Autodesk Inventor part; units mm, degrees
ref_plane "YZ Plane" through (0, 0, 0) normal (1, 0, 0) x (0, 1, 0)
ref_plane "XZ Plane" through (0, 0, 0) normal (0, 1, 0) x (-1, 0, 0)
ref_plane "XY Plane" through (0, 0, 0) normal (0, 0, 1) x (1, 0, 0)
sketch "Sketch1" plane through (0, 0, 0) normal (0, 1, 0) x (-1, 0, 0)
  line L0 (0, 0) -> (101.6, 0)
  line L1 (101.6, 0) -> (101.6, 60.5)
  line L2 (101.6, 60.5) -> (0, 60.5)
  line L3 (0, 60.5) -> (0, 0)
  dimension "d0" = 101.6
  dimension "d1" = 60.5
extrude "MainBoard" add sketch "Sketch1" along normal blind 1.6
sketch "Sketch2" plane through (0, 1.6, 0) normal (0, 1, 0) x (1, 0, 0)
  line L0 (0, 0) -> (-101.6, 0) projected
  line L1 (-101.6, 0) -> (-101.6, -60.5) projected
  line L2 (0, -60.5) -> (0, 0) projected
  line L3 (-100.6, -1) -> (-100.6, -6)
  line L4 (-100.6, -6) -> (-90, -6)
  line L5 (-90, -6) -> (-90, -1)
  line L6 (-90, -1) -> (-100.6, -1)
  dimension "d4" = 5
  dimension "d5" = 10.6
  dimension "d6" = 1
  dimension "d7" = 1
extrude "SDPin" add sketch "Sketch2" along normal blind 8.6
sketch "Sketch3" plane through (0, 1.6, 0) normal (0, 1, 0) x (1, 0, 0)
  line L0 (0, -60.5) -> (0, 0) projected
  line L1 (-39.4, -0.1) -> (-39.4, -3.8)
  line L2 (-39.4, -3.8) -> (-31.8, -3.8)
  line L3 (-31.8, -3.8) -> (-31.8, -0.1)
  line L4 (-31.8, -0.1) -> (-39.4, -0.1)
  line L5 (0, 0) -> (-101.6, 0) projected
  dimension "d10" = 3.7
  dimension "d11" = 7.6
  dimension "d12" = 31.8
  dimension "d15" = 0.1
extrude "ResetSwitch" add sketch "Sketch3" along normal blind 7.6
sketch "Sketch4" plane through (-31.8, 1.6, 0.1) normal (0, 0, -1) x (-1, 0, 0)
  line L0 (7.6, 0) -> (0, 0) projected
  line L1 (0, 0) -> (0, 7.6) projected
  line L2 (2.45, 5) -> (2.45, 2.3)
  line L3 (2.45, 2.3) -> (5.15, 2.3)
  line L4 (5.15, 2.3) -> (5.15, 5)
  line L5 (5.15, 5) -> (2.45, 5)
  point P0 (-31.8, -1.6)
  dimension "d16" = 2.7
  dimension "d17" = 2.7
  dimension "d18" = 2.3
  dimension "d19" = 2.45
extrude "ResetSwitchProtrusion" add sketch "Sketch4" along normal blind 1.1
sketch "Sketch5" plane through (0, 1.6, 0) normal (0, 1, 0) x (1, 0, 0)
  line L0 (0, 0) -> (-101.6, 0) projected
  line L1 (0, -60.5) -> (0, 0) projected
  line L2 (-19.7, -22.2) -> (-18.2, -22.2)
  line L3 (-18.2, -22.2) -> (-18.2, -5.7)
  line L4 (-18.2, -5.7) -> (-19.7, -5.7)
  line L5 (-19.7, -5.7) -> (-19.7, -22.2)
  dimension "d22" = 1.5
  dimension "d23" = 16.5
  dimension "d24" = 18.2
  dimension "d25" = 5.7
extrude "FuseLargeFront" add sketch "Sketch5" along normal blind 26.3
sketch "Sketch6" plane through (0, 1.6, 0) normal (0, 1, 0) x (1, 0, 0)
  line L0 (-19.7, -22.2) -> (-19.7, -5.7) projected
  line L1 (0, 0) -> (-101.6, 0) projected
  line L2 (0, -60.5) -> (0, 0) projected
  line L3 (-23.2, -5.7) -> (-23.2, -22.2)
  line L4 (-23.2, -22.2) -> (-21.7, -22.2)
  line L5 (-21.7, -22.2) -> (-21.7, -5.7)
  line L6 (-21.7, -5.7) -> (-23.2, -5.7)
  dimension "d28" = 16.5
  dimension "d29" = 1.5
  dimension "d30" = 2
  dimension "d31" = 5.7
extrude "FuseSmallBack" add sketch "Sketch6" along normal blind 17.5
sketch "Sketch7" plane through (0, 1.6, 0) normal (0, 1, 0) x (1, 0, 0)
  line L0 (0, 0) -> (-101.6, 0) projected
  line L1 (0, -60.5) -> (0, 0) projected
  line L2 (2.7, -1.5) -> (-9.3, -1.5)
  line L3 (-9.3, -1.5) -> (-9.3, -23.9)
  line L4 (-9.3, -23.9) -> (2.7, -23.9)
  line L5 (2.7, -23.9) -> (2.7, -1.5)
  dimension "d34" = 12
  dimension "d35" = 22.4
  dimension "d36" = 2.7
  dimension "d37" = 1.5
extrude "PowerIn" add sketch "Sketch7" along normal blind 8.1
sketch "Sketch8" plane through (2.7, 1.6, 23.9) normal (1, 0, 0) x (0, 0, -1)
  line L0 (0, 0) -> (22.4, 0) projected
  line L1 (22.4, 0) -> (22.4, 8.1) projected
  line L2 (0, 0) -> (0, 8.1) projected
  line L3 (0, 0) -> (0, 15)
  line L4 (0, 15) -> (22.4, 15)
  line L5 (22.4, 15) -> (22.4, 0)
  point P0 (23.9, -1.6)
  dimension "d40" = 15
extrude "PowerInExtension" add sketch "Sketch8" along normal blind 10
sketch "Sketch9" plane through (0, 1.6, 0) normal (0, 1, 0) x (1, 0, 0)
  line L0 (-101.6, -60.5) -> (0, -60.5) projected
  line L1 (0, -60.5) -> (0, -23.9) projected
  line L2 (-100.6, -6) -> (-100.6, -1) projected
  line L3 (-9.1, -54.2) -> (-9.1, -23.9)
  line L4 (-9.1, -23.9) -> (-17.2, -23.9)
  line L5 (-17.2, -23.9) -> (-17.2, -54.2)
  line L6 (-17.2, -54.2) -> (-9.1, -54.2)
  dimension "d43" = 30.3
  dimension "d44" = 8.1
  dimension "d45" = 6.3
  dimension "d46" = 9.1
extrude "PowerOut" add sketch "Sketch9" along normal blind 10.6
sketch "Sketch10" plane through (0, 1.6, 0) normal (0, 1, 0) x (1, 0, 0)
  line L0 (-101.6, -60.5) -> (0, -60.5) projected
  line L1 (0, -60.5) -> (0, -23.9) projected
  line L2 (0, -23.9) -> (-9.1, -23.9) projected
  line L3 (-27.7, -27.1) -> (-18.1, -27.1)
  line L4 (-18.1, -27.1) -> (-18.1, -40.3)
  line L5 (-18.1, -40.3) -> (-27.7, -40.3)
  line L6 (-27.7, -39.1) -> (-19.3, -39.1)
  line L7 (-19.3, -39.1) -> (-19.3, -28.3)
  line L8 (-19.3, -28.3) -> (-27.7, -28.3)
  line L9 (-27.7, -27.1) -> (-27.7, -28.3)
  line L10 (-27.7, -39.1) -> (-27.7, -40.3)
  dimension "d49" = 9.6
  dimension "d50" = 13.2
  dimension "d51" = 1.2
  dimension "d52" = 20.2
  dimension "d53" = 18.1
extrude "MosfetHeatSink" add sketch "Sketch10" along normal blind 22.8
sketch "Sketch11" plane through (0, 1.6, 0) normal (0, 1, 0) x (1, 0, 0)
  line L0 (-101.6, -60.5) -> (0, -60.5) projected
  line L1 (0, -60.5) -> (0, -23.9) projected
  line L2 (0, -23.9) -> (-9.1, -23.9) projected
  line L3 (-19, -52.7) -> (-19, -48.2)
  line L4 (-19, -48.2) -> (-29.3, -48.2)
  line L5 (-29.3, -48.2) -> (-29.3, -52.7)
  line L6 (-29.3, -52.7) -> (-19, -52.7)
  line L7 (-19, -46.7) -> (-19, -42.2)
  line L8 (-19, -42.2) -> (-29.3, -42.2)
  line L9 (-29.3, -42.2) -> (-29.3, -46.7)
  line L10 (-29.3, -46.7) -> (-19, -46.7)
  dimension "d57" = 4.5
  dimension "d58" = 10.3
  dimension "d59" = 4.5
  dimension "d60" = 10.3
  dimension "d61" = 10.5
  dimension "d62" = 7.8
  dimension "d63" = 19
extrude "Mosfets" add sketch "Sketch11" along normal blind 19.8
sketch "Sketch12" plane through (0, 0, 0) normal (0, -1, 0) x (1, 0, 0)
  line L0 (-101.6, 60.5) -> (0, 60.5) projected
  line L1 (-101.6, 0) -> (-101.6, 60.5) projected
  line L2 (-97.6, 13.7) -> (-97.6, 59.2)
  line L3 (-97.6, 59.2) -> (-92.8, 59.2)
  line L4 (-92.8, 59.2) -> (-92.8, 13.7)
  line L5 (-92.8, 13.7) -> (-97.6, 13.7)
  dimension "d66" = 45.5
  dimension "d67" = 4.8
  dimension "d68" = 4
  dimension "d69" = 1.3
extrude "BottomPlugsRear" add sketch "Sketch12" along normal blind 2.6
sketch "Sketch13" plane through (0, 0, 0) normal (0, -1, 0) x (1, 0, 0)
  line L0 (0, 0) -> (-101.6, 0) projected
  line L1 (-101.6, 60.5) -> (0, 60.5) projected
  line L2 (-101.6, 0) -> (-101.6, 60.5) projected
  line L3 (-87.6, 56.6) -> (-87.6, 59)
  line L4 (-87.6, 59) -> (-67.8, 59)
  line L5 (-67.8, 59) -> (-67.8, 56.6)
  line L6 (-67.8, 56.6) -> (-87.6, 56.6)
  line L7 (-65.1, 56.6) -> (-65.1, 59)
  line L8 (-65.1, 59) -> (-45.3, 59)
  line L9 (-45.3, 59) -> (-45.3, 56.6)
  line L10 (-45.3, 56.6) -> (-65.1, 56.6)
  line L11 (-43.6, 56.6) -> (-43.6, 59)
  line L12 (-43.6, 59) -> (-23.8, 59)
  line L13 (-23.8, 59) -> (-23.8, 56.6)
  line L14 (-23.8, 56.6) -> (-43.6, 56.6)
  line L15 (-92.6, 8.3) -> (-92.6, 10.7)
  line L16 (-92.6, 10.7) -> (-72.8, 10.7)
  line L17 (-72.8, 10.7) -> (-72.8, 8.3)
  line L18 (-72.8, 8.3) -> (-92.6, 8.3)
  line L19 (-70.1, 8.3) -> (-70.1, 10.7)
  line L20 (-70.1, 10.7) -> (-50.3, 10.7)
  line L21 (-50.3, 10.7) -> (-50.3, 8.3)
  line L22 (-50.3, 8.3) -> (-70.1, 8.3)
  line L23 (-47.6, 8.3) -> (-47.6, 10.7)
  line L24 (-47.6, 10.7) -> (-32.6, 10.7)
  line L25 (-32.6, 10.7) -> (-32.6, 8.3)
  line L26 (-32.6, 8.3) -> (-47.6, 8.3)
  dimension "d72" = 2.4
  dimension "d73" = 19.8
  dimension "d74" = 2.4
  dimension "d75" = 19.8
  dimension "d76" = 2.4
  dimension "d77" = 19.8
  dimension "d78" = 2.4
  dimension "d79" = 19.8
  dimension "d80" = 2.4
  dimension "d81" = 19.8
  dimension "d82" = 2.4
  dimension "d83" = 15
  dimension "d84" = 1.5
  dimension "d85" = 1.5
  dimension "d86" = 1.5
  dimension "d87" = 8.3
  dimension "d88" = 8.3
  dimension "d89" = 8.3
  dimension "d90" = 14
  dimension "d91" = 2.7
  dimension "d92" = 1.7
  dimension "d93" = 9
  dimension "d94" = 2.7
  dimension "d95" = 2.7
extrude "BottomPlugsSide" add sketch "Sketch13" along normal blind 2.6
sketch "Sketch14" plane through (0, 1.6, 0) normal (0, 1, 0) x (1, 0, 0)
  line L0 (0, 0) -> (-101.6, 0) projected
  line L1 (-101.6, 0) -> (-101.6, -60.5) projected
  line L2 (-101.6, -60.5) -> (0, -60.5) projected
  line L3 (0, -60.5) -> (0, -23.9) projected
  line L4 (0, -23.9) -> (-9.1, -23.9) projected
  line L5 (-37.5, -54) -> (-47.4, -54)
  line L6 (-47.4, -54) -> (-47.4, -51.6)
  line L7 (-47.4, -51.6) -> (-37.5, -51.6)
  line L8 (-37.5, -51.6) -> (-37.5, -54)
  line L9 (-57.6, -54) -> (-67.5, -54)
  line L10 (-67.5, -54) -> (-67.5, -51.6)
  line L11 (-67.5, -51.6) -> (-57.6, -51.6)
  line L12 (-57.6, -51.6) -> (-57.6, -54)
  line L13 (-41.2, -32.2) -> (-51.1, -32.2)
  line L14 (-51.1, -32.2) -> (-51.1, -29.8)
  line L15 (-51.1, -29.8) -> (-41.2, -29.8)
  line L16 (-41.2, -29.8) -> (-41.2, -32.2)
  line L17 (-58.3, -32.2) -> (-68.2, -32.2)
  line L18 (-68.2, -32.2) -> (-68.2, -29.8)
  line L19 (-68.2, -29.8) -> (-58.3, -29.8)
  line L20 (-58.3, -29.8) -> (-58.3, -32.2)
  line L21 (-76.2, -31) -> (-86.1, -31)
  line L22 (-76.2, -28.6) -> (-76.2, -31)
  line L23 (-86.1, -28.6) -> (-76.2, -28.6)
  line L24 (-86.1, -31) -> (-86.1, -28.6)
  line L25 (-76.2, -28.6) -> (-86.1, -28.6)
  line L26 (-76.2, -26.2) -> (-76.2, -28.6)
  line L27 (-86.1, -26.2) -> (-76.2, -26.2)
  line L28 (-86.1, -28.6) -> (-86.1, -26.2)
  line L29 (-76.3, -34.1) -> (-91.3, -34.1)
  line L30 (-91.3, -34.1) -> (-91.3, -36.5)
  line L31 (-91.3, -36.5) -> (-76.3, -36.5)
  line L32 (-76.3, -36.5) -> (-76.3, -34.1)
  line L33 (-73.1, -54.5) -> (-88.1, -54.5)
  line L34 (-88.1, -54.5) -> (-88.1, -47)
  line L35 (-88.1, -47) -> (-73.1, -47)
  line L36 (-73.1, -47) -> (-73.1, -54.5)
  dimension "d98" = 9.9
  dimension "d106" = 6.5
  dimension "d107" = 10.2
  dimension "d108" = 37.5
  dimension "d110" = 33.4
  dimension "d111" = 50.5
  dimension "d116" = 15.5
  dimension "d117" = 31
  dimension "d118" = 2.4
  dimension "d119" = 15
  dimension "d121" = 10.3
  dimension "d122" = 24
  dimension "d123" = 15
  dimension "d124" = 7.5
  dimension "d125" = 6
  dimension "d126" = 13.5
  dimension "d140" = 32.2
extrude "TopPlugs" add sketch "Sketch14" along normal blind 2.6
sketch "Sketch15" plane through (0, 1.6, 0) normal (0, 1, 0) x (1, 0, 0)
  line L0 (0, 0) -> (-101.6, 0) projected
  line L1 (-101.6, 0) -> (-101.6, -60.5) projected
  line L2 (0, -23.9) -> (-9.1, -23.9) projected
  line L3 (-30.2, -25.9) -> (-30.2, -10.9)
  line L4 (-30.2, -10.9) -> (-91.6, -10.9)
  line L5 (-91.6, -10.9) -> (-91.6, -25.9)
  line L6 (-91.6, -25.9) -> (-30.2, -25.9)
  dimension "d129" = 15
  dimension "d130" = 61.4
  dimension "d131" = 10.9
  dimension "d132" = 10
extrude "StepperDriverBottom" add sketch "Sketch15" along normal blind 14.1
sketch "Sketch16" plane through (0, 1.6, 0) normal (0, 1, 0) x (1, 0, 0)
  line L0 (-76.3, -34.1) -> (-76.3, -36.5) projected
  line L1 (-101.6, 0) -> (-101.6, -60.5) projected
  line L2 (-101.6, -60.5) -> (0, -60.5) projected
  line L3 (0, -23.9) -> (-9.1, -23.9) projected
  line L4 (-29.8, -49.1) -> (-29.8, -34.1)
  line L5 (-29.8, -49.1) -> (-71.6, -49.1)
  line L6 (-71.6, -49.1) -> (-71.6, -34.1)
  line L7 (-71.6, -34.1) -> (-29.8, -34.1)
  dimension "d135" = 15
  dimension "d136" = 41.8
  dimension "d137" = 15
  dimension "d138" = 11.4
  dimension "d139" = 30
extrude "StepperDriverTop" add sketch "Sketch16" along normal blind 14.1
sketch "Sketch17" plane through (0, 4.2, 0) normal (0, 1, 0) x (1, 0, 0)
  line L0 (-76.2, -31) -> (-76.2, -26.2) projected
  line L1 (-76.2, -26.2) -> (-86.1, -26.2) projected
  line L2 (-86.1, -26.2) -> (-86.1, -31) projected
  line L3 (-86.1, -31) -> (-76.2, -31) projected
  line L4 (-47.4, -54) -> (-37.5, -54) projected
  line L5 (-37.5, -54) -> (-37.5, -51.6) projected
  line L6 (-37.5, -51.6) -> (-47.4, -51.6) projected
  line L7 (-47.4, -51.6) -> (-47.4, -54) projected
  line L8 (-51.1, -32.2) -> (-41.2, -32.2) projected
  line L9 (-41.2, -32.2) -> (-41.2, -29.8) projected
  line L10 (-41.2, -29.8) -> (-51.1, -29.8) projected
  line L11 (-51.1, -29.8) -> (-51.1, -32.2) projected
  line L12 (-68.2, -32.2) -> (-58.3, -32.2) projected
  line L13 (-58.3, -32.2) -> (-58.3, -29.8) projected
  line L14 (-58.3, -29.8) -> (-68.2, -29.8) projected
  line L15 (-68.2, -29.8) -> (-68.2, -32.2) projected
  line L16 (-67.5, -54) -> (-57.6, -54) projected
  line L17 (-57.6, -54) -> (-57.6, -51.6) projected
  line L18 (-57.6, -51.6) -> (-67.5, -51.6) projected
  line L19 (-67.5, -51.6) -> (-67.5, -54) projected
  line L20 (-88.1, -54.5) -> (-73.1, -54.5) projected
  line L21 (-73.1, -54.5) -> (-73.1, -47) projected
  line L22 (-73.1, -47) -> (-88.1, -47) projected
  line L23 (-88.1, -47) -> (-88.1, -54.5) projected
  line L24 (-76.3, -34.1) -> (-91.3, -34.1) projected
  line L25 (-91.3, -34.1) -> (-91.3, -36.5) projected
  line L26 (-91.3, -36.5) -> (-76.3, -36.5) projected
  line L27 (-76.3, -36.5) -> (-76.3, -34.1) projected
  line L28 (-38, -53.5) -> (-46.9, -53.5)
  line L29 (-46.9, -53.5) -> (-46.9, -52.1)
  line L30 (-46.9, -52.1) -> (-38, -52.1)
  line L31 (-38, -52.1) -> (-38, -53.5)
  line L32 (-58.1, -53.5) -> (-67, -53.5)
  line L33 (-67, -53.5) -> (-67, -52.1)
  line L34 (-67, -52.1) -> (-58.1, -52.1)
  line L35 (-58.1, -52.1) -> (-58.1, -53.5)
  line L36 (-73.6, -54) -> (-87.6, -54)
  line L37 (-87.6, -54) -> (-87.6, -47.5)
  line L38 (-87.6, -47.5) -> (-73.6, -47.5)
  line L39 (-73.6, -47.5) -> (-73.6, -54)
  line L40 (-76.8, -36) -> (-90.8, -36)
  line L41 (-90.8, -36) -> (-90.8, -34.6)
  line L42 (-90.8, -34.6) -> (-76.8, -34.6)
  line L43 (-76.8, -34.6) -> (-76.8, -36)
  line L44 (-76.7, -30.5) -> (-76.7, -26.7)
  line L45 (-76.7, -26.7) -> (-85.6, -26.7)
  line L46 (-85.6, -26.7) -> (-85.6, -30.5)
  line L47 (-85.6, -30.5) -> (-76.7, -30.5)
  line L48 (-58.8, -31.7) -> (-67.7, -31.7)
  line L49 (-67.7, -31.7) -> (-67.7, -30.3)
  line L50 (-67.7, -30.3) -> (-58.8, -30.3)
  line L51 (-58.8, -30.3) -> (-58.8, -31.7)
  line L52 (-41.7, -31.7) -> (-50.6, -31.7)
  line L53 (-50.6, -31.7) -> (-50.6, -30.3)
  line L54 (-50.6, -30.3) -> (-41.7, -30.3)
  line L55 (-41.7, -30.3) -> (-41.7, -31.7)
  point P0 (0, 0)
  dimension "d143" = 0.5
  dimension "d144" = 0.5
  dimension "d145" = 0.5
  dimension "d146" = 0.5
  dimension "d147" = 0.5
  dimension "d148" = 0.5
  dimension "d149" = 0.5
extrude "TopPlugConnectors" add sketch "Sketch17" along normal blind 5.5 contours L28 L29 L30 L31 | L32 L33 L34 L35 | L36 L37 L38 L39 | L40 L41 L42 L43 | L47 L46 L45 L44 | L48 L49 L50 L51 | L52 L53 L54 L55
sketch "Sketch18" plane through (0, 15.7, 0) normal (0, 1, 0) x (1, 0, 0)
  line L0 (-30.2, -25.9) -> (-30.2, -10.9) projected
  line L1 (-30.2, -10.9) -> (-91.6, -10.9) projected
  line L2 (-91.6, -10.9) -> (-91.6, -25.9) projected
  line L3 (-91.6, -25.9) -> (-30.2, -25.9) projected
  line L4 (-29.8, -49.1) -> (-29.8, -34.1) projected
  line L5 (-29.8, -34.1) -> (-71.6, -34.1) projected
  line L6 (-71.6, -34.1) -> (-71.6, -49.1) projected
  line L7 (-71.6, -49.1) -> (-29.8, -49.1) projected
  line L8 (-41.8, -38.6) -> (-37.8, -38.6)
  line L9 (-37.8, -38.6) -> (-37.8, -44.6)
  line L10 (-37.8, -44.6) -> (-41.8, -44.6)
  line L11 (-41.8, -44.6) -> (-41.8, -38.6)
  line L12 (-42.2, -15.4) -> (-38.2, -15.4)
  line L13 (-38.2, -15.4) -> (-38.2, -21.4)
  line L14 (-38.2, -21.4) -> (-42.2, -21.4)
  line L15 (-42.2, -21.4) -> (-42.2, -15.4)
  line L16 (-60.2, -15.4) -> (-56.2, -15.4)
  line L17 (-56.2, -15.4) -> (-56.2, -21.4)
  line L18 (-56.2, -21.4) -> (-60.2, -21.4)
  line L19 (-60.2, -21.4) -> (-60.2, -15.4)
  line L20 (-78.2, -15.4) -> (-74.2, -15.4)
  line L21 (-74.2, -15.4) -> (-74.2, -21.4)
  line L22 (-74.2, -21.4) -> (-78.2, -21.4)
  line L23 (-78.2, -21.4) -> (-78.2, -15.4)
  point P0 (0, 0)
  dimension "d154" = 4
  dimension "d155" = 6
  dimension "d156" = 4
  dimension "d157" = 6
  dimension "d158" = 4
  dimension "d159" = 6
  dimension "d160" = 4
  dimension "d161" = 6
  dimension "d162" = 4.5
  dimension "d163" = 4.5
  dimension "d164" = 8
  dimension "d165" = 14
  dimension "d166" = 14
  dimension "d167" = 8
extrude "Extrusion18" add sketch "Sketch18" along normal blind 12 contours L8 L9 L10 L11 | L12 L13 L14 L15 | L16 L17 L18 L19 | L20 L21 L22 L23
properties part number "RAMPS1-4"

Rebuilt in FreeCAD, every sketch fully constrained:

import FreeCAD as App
import Part
import Sketcher

V = App.Vector


def add_polygon(sketch, points):
    """Adds a closed chain of lines whose ends are joined by coincident constraints."""
    first, n = sketch.GeometryCount, len(points)
    for a, b in zip(points, points[1:] + points[:1]):
        sketch.addGeometry(Part.LineSegment(App.Vector(*a, 0), App.Vector(*b, 0)), False)
    for i in range(n):
        sketch.addConstraint(Sketcher.Constraint("Coincident", first + i, 2, first + (i + 1) % n, 1))

doc = App.newDocument("Part")
body = doc.addObject("PartDesign::Body", "Body")

sketch1 = body.newObject("Sketcher::SketchObject", "Sketch")
sketch1.AttachmentSupport = (doc.getObject("XZ_Plane"), [""])
sketch1.MapMode = "FlatFace"
add_polygon(sketch1, [(0, 60), (0, 0), (-102, 0), (-102, 60)])
sketch1.addConstraint([
    Sketcher.Constraint("Vertical", 0),
    Sketcher.Constraint("Horizontal", 1),
    Sketcher.Constraint("Vertical", 2),
    Sketcher.Constraint("Horizontal", 3),
    Sketcher.Constraint("Coincident", 0, 2, -1, 1),
    Sketcher.Constraint("DistanceX", 1, 2, 1, 1, 101.6),
    Sketcher.Constraint("DistanceY", 0, 2, 0, 1, 60.5),
])
pad1 = body.newObject("PartDesign::Pad", "Pad")
pad1.Profile = sketch1
pad1.Length = 1.6
pad1.Reversed = True

sketch2 = body.newObject("Sketcher::SketchObject", "Sketch001")
sketch2.AttachmentSupport = (doc.getObject("XZ_Plane"), [""])
sketch2.MapMode = "FlatFace"
sketch2.AttachmentOffset = App.Placement(V(0, 0, -1.6), App.Rotation())
add_polygon(sketch2, [(-90, 1), (-101, 1), (-101, 6), (-90, 6)])
sketch2.addConstraint([
    Sketcher.Constraint("Horizontal", 0),
    Sketcher.Constraint("Vertical", 1),
    Sketcher.Constraint("Horizontal", 2),
    Sketcher.Constraint("Vertical", 3),
    Sketcher.Constraint("DistanceY", 1, 1, 1, 2, 5.0),
    Sketcher.Constraint("DistanceX", 0, 2, 0, 1, 10.6),
    Sketcher.Constraint("DistanceY", -1, 1, 0, 2, 1.0),
    Sketcher.Constraint("DistanceX", 2, 2, -1, 1, 90.0),
])
pad2 = body.newObject("PartDesign::Pad", "Pad001")
pad2.Profile = sketch2
pad2.Length = 8.6
pad2.Reversed = True

sketch3 = body.newObject("Sketcher::SketchObject", "Sketch002")
sketch3.AttachmentSupport = (doc.getObject("XZ_Plane"), [""])
sketch3.MapMode = "FlatFace"
sketch3.AttachmentOffset = App.Placement(V(0, 0, -1.6), App.Rotation())
add_polygon(sketch3, [(-31.8, 0.1), (-39.4, 0.1), (-39.4, 3.8), (-31.8, 3.8)])
sketch3.addConstraint([
    Sketcher.Constraint("Horizontal", 0),
    Sketcher.Constraint("Vertical", 1),
    Sketcher.Constraint("Horizontal", 2),
    Sketcher.Constraint("Vertical", 3),
    Sketcher.Constraint("DistanceX", 0, 2, 0, 1, 7.6),
    Sketcher.Constraint("DistanceY", 1, 1, 1, 2, 3.7),
    Sketcher.Constraint("DistanceY", -1, 1, 0, 2, 0.1),
    Sketcher.Constraint("DistanceX", 2, 2, -1, 1, 31.8),
])
pad3 = body.newObject("PartDesign::Pad", "Pad002")
pad3.Profile = sketch3
pad3.Length = 7.6
pad3.Reversed = True

sketch4 = body.newObject("Sketcher::SketchObject", "Sketch003")
sketch4.AttachmentSupport = (doc.getObject("XY_Plane"), [""])
sketch4.MapMode = "FlatFace"
sketch4.AttachmentOffset = App.Placement(V(0, 0, 0.1), App.Rotation())
add_polygon(sketch4, [(-37, 6.6), (-34.2, 6.6), (-34.2, 3.9), (-37, 3.9)])
sketch4.addConstraint([
    Sketcher.Constraint("Horizontal", 0),
    Sketcher.Constraint("Vertical", 1),
    Sketcher.Constraint("Horizontal", 2),
    Sketcher.Constraint("Vertical", 3),
    Sketcher.Constraint("Equal", 2, 1),
    Sketcher.Constraint("DistanceX", 0, 1, 0, 2, 2.7),
    Sketcher.Constraint("DistanceY", -1, 1, 0, 2, 6.6),
    Sketcher.Constraint("DistanceX", 0, 2, -1, 1, 34.25),
])
pad4 = body.newObject("PartDesign::Pad", "Pad003")
pad4.Profile = sketch4
pad4.Length = 1.1
pad4.Reversed = True

sketch5 = body.newObject("Sketcher::SketchObject", "Sketch004")
sketch5.AttachmentSupport = (doc.getObject("XZ_Plane"), [""])
sketch5.MapMode = "FlatFace"
sketch5.AttachmentOffset = App.Placement(V(0, 0, -1.6), App.Rotation())
add_polygon(sketch5, [(-19.7, 5.7), (-19.7, 22.2), (-18.2, 22.2), (-18.2, 5.7)])
sketch5.addConstraint([
    Sketcher.Constraint("Vertical", 0),
    Sketcher.Constraint("Horizontal", 1),
    Sketcher.Constraint("Vertical", 2),
    Sketcher.Constraint("Horizontal", 3),
    Sketcher.Constraint("DistanceX", 1, 1, 1, 2, 1.5),
    Sketcher.Constraint("DistanceY", 0, 1, 0, 2, 16.5),
    Sketcher.Constraint("DistanceX", 1, 2, -1, 1, 18.2),
    Sketcher.Constraint("DistanceY", -1, 1, 2, 2, 5.7),
])
pad5 = body.newObject("PartDesign::Pad", "Pad004")
pad5.Profile = sketch5
pad5.Length = 26.3
pad5.Reversed = True

sketch6 = body.newObject("Sketcher::SketchObject", "Sketch005")
sketch6.AttachmentSupport = (doc.getObject("XZ_Plane"), [""])
sketch6.MapMode = "FlatFace"
sketch6.AttachmentOffset = App.Placement(V(0, 0, -1.6), App.Rotation())
add_polygon(sketch6, [(-21.7, 5.7), (-23.2, 5.7), (-23.2, 22.2), (-21.7, 22.2)])
sketch6.addConstraint([
    Sketcher.Constraint("Horizontal", 0),
    Sketcher.Constraint("Vertical", 1),
    Sketcher.Constraint("Horizontal", 2),
    Sketcher.Constraint("Vertical", 3),
    Sketcher.Constraint("DistanceX", 0, 2, 0, 1, 1.5),
    Sketcher.Constraint("DistanceY", 1, 1, 1, 2, 16.5),
    Sketcher.Constraint("DistanceY", -1, 1, 0, 2, 5.7),
    Sketcher.Constraint("DistanceX", 0, 2, -1, 1, 23.2),
])
pad6 = body.newObject("PartDesign::Pad", "Pad005")
pad6.Profile = sketch6
pad6.Length = 17.5
pad6.Reversed = True

sketch7 = body.newObject("Sketcher::SketchObject", "Sketch006")
sketch7.AttachmentSupport = (doc.getObject("XZ_Plane"), [""])
sketch7.MapMode = "FlatFace"
sketch7.AttachmentOffset = App.Placement(V(0, 0, -1.6), App.Rotation())
add_polygon(sketch7, [(-9, 24), (3, 24), (3, 2), (-9, 2)])
sketch7.addConstraint([
    Sketcher.Constraint("Horizontal", 0),
    Sketcher.Constraint("Vertical", 1),
    Sketcher.Constraint("Horizontal", 2),
    Sketcher.Constraint("Vertical", 3),
    Sketcher.Constraint("DistanceX", 0, 1, 0, 2, 12.0),
    Sketcher.Constraint("DistanceY", 1, 2, 1, 1, 22.4),
    Sketcher.Constraint("DistanceX", -1, 1, 0, 2, 2.7),
    Sketcher.Constraint("DistanceY", -1, 1, 1, 2, 1.5),
])
pad7 = body.newObject("PartDesign::Pad", "Pad006")
pad7.Profile = sketch7
pad7.Length = 8.1
pad7.Reversed = True

sketch8 = body.newObject("Sketcher::SketchObject", "Sketch007")
sketch8.AttachmentSupport = (doc.getObject("YZ_Plane"), [""])
sketch8.MapMode = "FlatFace"
sketch8.AttachmentOffset = App.Placement(V(0, 0, 2.7), App.Rotation())
add_polygon(sketch8, [(17, 24), (2, 24), (2, 2), (17, 2)])
sketch8.addConstraint([
    Sketcher.Constraint("Horizontal", 0),
    Sketcher.Constraint("Vertical", 1),
    Sketcher.Constraint("Horizontal", 2),
    Sketcher.Constraint("Vertical", 3),
    Sketcher.Constraint("DistanceX", 0, 2, 0, 1, 15.0),
    Sketcher.Constraint("DistanceY", 1, 2, 1, 1, 22.4),
    Sketcher.Constraint("DistanceX", -1, 1, 0, 2, 1.6),
    Sketcher.Constraint("DistanceY", -1, 1, 0, 2, 23.9),
])
pad8 = body.newObject("PartDesign::Pad", "Pad007")
pad8.Profile = sketch8
pad8.Length = 10

sketch9 = body.newObject("Sketcher::SketchObject", "Sketch008")
sketch9.AttachmentSupport = (doc.getObject("XZ_Plane"), [""])
sketch9.MapMode = "FlatFace"
sketch9.AttachmentOffset = App.Placement(V(0, 0, -1.6), App.Rotation())
add_polygon(sketch9, [(-17, 54), (-9, 54), (-9, 24), (-17, 24)])
sketch9.addConstraint([
    Sketcher.Constraint("Horizontal", 0),
    Sketcher.Constraint("Vertical", 1),
    Sketcher.Constraint("Horizontal", 2),
    Sketcher.Constraint("Vertical", 3),
    Sketcher.Constraint("DistanceX", 0, 1, 0, 2, 8.1),
    Sketcher.Constraint("DistanceY", 1, 2, 1, 1, 30.3),
    Sketcher.Constraint("DistanceX", 0, 2, -1, 1, 9.1),
    Sketcher.Constraint("DistanceY", -1, 1, 0, 2, 54.2),
])
pad9 = body.newObject("PartDesign::Pad", "Pad008")
pad9.Profile = sketch9
pad9.Length = 10.6
pad9.Reversed = True

sketch10 = body.newObject("Sketcher::SketchObject", "Sketch009")
sketch10.AttachmentSupport = (doc.getObject("XZ_Plane"), [""])
sketch10.MapMode = "FlatFace"
sketch10.AttachmentOffset = App.Placement(V(0, 0, -1.6), App.Rotation())
add_polygon(sketch10, [(-18.1, 27.1), (-27.7, 27.1), (-27.7, 28.3), (-19.3, 28.3), (-19.3, 39.1), (-27.7, 39.1), (-27.7, 40.3), (-18.1, 40.3)])
sketch10.addConstraint([
    Sketcher.Constraint("Horizontal", 0),
    Sketcher.Constraint("Vertical", 1),
    Sketcher.Constraint("Horizontal", 2),
    Sketcher.Constraint("Vertical", 3),
    Sketcher.Constraint("Horizontal", 4),
    Sketcher.Constraint("Vertical", 5),
    Sketcher.Constraint("Horizontal", 6),
    Sketcher.Constraint("Vertical", 7),
    Sketcher.Constraint("Vertical", 1, 2, 4, 2),
    Sketcher.Constraint("Equal", 1, 5),
    Sketcher.Constraint("DistanceX", 0, 2, 0, 1, 9.6),
    Sketcher.Constraint("DistanceY", 1, 1, 1, 2, 1.2),
    Sketcher.Constraint("DistanceY", 7, 2, 7, 1, 13.2),
    Sketcher.Constraint("DistanceX", 6, 2, -1, 1, 18.1),
    Sketcher.Constraint("DistanceX", 3, 2, 6, 2, 1.2),
    Sketcher.Constraint("DistanceY", -1, 1, 0, 2, 27.1),
])
pad10 = body.newObject("PartDesign::Pad", "Pad009")
pad10.Profile = sketch10
pad10.Length = 22.8
pad10.Reversed = True

sketch11 = body.newObject("Sketcher::SketchObject", "Sketch010")
sketch11.AttachmentSupport = (doc.getObject("XZ_Plane"), [""])
sketch11.MapMode = "FlatFace"
sketch11.AttachmentOffset = App.Placement(V(0, 0, -1.6), App.Rotation())
add_polygon(sketch11, [(-29.3, 52.7), (-19, 52.7), (-19, 48.2), (-29.3, 48.2)])
add_polygon(sketch11, [(-29.3, 46.7), (-19, 46.7), (-19, 42.2), (-29.3, 42.2)])
sketch11.addConstraint([
    Sketcher.Constraint("Horizontal", 0),
    Sketcher.Constraint("Vertical", 1),
    Sketcher.Constraint("Horizontal", 2),
    Sketcher.Constraint("Vertical", 3),
    Sketcher.Constraint("Horizontal", 4),
    Sketcher.Constraint("Vertical", 5),
    Sketcher.Constraint("Horizontal", 6),
    Sketcher.Constraint("Vertical", 7),
    Sketcher.Constraint("Vertical", 1, 2, 4, 2),
    Sketcher.Constraint("Vertical", 3, 2, 6, 2),
    Sketcher.Constraint("Equal", 3, 5),
    Sketcher.Constraint("DistanceX", 0, 1, 0, 2, 10.3),
    Sketcher.Constraint("DistanceY", 1, 2, 1, 1, 4.5),
    Sketcher.Constraint("DistanceX", 0, 2, -1, 1, 19.0),
    Sketcher.Constraint("DistanceY", 5, 2, 0, 2, 10.5),
    Sketcher.Constraint("DistanceY", -1, 1, 0, 2, 52.7),
])
pad11 = body.newObject("PartDesign::Pad", "Pad010")
pad11.Profile = sketch11
pad11.Length = 19.8
pad11.Reversed = True

sketch12 = body.newObject("Sketcher::SketchObject", "Sketch011")
sketch12.AttachmentSupport = (doc.getObject("XZ_Plane"), [""])
sketch12.MapMode = "FlatFace"
add_polygon(sketch12, [(-97.6, 59.2), (-97.6, 13.7), (-92.8, 13.7), (-92.8, 59.2)])
sketch12.addConstraint([
    Sketcher.Constraint("Vertical", 0),
    Sketcher.Constraint("Horizontal", 1),
    Sketcher.Constraint("Vertical", 2),
    Sketcher.Constraint("Horizontal", 3),
    Sketcher.Constraint("DistanceX", 1, 1, 1, 2, 4.8),
    Sketcher.Constraint("DistanceY", 0, 2, 0, 1, 45.5),
    Sketcher.Constraint("DistanceX", 0, 2, -1, 1, 97.6),
    Sketcher.Constraint("DistanceY", -1, 1, 0, 2, 13.7),
])
pad12 = body.newObject("PartDesign::Pad", "Pad011")
pad12.Profile = sketch12
pad12.Length = 2.6

sketch13 = body.newObject("Sketcher::SketchObject", "Sketch012")
sketch13.AttachmentSupport = (doc.getObject("XZ_Plane"), [""])
sketch13.MapMode = "FlatFace"
add_polygon(sketch13, [(-87.6, 59), (-87.6, 56.6), (-67.8, 56.6), (-67.8, 59)])
add_polygon(sketch13, [(-65.1, 59), (-65.1, 56.6), (-45.3, 56.6), (-45.3, 59)])
add_polygon(sketch13, [(-43.6, 59), (-43.6, 56.6), (-23.8, 56.6), (-23.8, 59)])
add_polygon(sketch13, [(-92.6, 10.7), (-92.6, 8.3), (-72.8, 8.3), (-72.8, 10.7)])
add_polygon(sketch13, [(-70.1, 10.7), (-70.1, 8.3), (-50.3, 8.3), (-50.3, 10.7)])
add_polygon(sketch13, [(-47.6, 10.7), (-47.6, 8.3), (-32.6, 8.3), (-32.6, 10.7)])
sketch13.addConstraint([
    Sketcher.Constraint("Vertical", 0),
    Sketcher.Constraint("Horizontal", 1),
    Sketcher.Constraint("Vertical", 2),
    Sketcher.Constraint("Horizontal", 3),
    Sketcher.Constraint("Vertical", 4),
    Sketcher.Constraint("Horizontal", 5),
    Sketcher.Constraint("Vertical", 6),
    Sketcher.Constraint("Horizontal", 7),
    Sketcher.Constraint("Vertical", 8),
    Sketcher.Constraint("Horizontal", 9),
    Sketcher.Constraint("Vertical", 10),
    Sketcher.Constraint("Horizontal", 11),
    Sketcher.Constraint("Vertical", 12),
    Sketcher.Constraint("Horizontal", 13),
    Sketcher.Constraint("Vertical", 14),
    Sketcher.Constraint("Horizontal", 15),
    Sketcher.Constraint("Vertical", 16),
    Sketcher.Constraint("Horizontal", 17),
    Sketcher.Constraint("Vertical", 18),
    Sketcher.Constraint("Horizontal", 19),
    Sketcher.Constraint("Vertical", 20),
    Sketcher.Constraint("Horizontal", 21),
    Sketcher.Constraint("Vertical", 22),
    Sketcher.Constraint("Horizontal", 23),
    Sketcher.Constraint("Horizontal", 1, 2, 4, 2),
    Sketcher.Constraint("Horizontal", 3, 2, 6, 2),
    Sketcher.Constraint("Horizontal", 5, 2, 8, 2),
    Sketcher.Constraint("Horizontal", 7, 2, 10, 2),
    Sketcher.Constraint("Horizontal", 13, 2, 16, 2),
    Sketcher.Constraint("Horizontal", 15, 2, 18, 2),
    Sketcher.Constraint("Horizontal", 17, 2, 20, 2),
    Sketcher.Constraint("Horizontal", 19, 2, 22, 2),
    Sketcher.Constraint("Equal", 3, 5),
    Sketcher.Constraint("Equal", 7, 9),
    Sketcher.Constraint("Equal", 11, 13),
    Sketcher.Constraint("Equal", 15, 17),
    Sketcher.Constraint("Equal", 10, 12),
    Sketcher.Constraint("DistanceX", 21, 1, 21, 2, 15.0),
    Sketcher.Constraint("DistanceX", 1, 1, 1, 2, 19.8),
    Sketcher.Constraint("DistanceY", 0, 2, 0, 1, 2.4),
    Sketcher.Constraint("DistanceY", -1, 1, 12, 2, 8.3),
    Sketcher.Constraint("DistanceX", 1, 2, 4, 2, 2.7),
    Sketcher.Constraint("DistanceX", 5, 2, 8, 2, 1.7),
    Sketcher.Constraint("DistanceX", 13, 2, 16, 2, 2.7),
    Sketcher.Constraint("DistanceX", 17, 2, 20, 2, 2.7),
    Sketcher.Constraint("DistanceY", -1, 1, 2, 2, 59.0),
    Sketcher.Constraint("DistanceX", 12, 2, 0, 2, 5.0),
    Sketcher.Constraint("DistanceX", 0, 2, -1, 1, 87.6),
])
pad13 = body.newObject("PartDesign::Pad", "Pad012")
pad13.Profile = sketch13
pad13.Length = 2.6

sketch14 = body.newObject("Sketcher::SketchObject", "Sketch013")
sketch14.AttachmentSupport = (doc.getObject("XZ_Plane"), [""])
sketch14.MapMode = "FlatFace"
sketch14.AttachmentOffset = App.Placement(V(0, 0, -1.6), App.Rotation())
add_polygon(sketch14, [(-47.4, 54), (-37.5, 54), (-37.5, 51.6), (-47.4, 51.6)])
add_polygon(sketch14, [(-67.5, 54), (-57.6, 54), (-57.6, 51.6), (-67.5, 51.6)])
add_polygon(sketch14, [(-51.1, 32.2), (-41.2, 32.2), (-41.2, 29.8), (-51.1, 29.8)])
add_polygon(sketch14, [(-68.2, 32.2), (-58.3, 32.2), (-58.3, 29.8), (-68.2, 29.8)])
add_polygon(sketch14, [(-86.1, 31), (-76.2, 31), (-76.2, 26.2), (-86.1, 26.2)])
add_polygon(sketch14, [(-76.3, 36.5), (-76.3, 34.1), (-91.3, 34.1), (-91.3, 36.5)])
add_polygon(sketch14, [(-88.1, 54.5), (-73.1, 54.5), (-73.1, 47), (-88.1, 47)])
sketch14.addConstraint([
    Sketcher.Constraint("Horizontal", 0),
    Sketcher.Constraint("Vertical", 1),
    Sketcher.Constraint("Horizontal", 2),
    Sketcher.Constraint("Vertical", 3),
    Sketcher.Constraint("Horizontal", 4),
    Sketcher.Constraint("Vertical", 5),
    Sketcher.Constraint("Horizontal", 6),
    Sketcher.Constraint("Vertical", 7),
    Sketcher.Constraint("Horizontal", 8),
    Sketcher.Constraint("Vertical", 9),
    Sketcher.Constraint("Horizontal", 10),
    Sketcher.Constraint("Vertical", 11),
    Sketcher.Constraint("Horizontal", 12),
    Sketcher.Constraint("Vertical", 13),
    Sketcher.Constraint("Horizontal", 14),
    Sketcher.Constraint("Vertical", 15),
    Sketcher.Constraint("Horizontal", 16),
    Sketcher.Constraint("Vertical", 17),
    Sketcher.Constraint("Horizontal", 18),
    Sketcher.Constraint("Vertical", 19),
    Sketcher.Constraint("Vertical", 20),
    Sketcher.Constraint("Horizontal", 21),
    Sketcher.Constraint("Vertical", 22),
    Sketcher.Constraint("Horizontal", 23),
    Sketcher.Constraint("Horizontal", 24),
    Sketcher.Constraint("Vertical", 25),
    Sketcher.Constraint("Horizontal", 26),
    Sketcher.Constraint("Vertical", 27),
    Sketcher.Constraint("Horizontal", 3, 2, 4, 2),
    Sketcher.Constraint("Horizontal", 2, 2, 5, 2),
    Sketcher.Constraint("Horizontal", 11, 2, 12, 2),
    Sketcher.Constraint("Horizontal", 10, 2, 13, 2),
    Sketcher.Constraint("Equal", 2, 4),
    Sketcher.Constraint("Equal", 6, 8),
    Sketcher.Constraint("Equal", 10, 12),
    Sketcher.Constraint("Equal", 14, 16),
    Sketcher.Constraint("Equal", 23, 24),
    Sketcher.Constraint("Equal", 7, 9),
    Sketcher.Constraint("Equal", 15, 20),
    Sketcher.Constraint("DistanceX", 21, 2, 21, 1, 15.0),
    Sketcher.Constraint("DistanceX", 0, 1, 0, 2, 9.9),
    Sketcher.Constraint("DistanceY", 1, 2, 1, 1, 2.4),
    Sketcher.Constraint("DistanceY", 25, 2, 25, 1, 7.5),
    Sketcher.Constraint("DistanceY", -1, 1, 16, 2, 31.0),
    Sketcher.Constraint("DistanceY", 17, 2, 15, 2, 6.0),
    Sketcher.Constraint("DistanceX", 0, 2, -1, 1, 37.5),
    Sketcher.Constraint("DistanceY", -1, 1, 8, 2, 32.2),
    Sketcher.Constraint("DistanceX", 4, 2, 3, 2, 10.2),
    Sketcher.Constraint("DistanceX", 5, 2, 10, 2, 6.5),
    Sketcher.Constraint("DistanceY", 18, 2, 22, 2, 10.3),
    Sketcher.Constraint("DistanceX", 24, 2, 4, 2, 15.5),
    Sketcher.Constraint("DistanceY", -1, 1, 0, 2, 54.0),
    Sketcher.Constraint("DistanceY", -1, 1, 25, 2, 47.0),
    Sketcher.Constraint("DistanceX", 16, 2, 14, 2, 8.0),
    Sketcher.Constraint("DistanceX", 26, 2, 19, 2, 2.0),
    Sketcher.Constraint("DistanceX", 20, 2, -1, 1, 76.3),
])
pad14 = body.newObject("PartDesign::Pad", "Pad013")
pad14.Profile = sketch14
pad14.Length = 2.6
pad14.Reversed = True

sketch15 = body.newObject("Sketcher::SketchObject", "Sketch014")
sketch15.AttachmentSupport = (doc.getObject("XZ_Plane"), [""])
sketch15.MapMode = "FlatFace"
sketch15.AttachmentOffset = App.Placement(V(0, 0, -1.6), App.Rotation())
add_polygon(sketch15, [(-92, 26), (-30, 26), (-30, 11), (-92, 11)])
sketch15.addConstraint([
    Sketcher.Constraint("Horizontal", 0),
    Sketcher.Constraint("Vertical", 1),
    Sketcher.Constraint("Horizontal", 2),
    Sketcher.Constraint("Vertical", 3),
    Sketcher.Constraint("DistanceY", 1, 2, 1, 1, 15.0),
    Sketcher.Constraint("DistanceX", 0, 1, 0, 2, 61.4),
    Sketcher.Constraint("DistanceY", -1, 1, 1, 2, 10.9),
    Sketcher.Constraint("DistanceX", 0, 2, -1, 1, 30.2),
])
pad15 = body.newObject("PartDesign::Pad", "Pad014")
pad15.Profile = sketch15
pad15.Length = 14.1
pad15.Reversed = True

sketch16 = body.newObject("Sketcher::SketchObject", "Sketch015")
sketch16.AttachmentSupport = (doc.getObject("XZ_Plane"), [""])
sketch16.MapMode = "FlatFace"
sketch16.AttachmentOffset = App.Placement(V(0, 0, -1.6), App.Rotation())
add_polygon(sketch16, [(-72, 49), (-30, 49), (-30, 34), (-72, 34)])
sketch16.addConstraint([
    Sketcher.Constraint("Horizontal", 0),
    Sketcher.Constraint("Vertical", 1),
    Sketcher.Constraint("Horizontal", 2),
    Sketcher.Constraint("Vertical", 3),
    Sketcher.Constraint("DistanceY", 1, 2, 1, 1, 15.0),
    Sketcher.Constraint("DistanceX", 0, 1, 0, 2, 41.8),
    Sketcher.Constraint("DistanceX", 0, 2, -1, 1, 29.8),
    Sketcher.Constraint("DistanceY", -1, 1, 0, 2, 49.1),
])
pad16 = body.newObject("PartDesign::Pad", "Pad015")
pad16.Profile = sketch16
pad16.Length = 14.1
pad16.Reversed = True

sketch17 = body.newObject("Sketcher::SketchObject", "Sketch016")
sketch17.AttachmentSupport = (doc.getObject("XZ_Plane"), [""])
sketch17.MapMode = "FlatFace"
sketch17.AttachmentOffset = App.Placement(V(0, 0, -4.2), App.Rotation())
add_polygon(sketch17, [(-46.9, 53.5), (-38, 53.5), (-38, 52.1), (-46.9, 52.1)])
add_polygon(sketch17, [(-67, 53.5), (-58.1, 53.5), (-58.1, 52.1), (-67, 52.1)])
add_polygon(sketch17, [(-87.6, 54), (-73.6, 54), (-73.6, 47.5), (-87.6, 47.5)])
add_polygon(sketch17, [(-90.8, 36), (-76.8, 36), (-76.8, 34.6), (-90.8, 34.6)])
add_polygon(sketch17, [(-85.6, 30.5), (-76.7, 30.5), (-76.7, 26.7), (-85.6, 26.7)])
add_polygon(sketch17, [(-67.7, 31.7), (-58.8, 31.7), (-58.8, 30.3), (-67.7, 30.3)])
add_polygon(sketch17, [(-50.6, 31.7), (-41.7, 31.7), (-41.7, 30.3), (-50.6, 30.3)])
sketch17.addConstraint([
    Sketcher.Constraint("Horizontal", 0),
    Sketcher.Constraint("Vertical", 1),
    Sketcher.Constraint("Horizontal", 2),
    Sketcher.Constraint("Vertical", 3),
    Sketcher.Constraint("Horizontal", 4),
    Sketcher.Constraint("Vertical", 5),
    Sketcher.Constraint("Horizontal", 6),
    Sketcher.Constraint("Vertical", 7),
    Sketcher.Constraint("Horizontal", 8),
    Sketcher.Constraint("Vertical", 9),
    Sketcher.Constraint("Horizontal", 10),
    Sketcher.Constraint("Vertical", 11),
    Sketcher.Constraint("Horizontal", 12),
    Sketcher.Constraint("Vertical", 13),
    Sketcher.Constraint("Horizontal", 14),
    Sketcher.Constraint("Vertical", 15),
    Sketcher.Constraint("Horizontal", 16),
    Sketcher.Constraint("Vertical", 17),
    Sketcher.Constraint("Horizontal", 18),
    Sketcher.Constraint("Vertical", 19),
    Sketcher.Constraint("Horizontal", 20),
    Sketcher.Constraint("Vertical", 21),
    Sketcher.Constraint("Horizontal", 22),
    Sketcher.Constraint("Vertical", 23),
    Sketcher.Constraint("Horizontal", 24),
    Sketcher.Constraint("Vertical", 25),
    Sketcher.Constraint("Horizontal", 26),
    Sketcher.Constraint("Vertical", 27),
    Sketcher.Constraint("Horizontal", 3, 2, 4, 2),
    Sketcher.Constraint("Horizontal", 2, 2, 5, 2),
    Sketcher.Constraint("Horizontal", 23, 2, 24, 2),
    Sketcher.Constraint("Horizontal", 22, 2, 25, 2),
    Sketcher.Constraint("Equal", 2, 4),
    Sketcher.Constraint("Equal", 10, 12),
    Sketcher.Constraint("Equal", 6, 16),
    Sketcher.Constraint("Equal", 18, 20),
    Sketcher.Constraint("Equal", 22, 24),
    Sketcher.Constraint("Equal", 7, 13),
    Sketcher.Constraint("Equal", 15, 21),
    Sketcher.Constraint("DistanceY", 7, 2, 8, 2, 0.5),
    Sketcher.Constraint("DistanceX", 8, 1, 8, 2, 14.0),
    Sketcher.Constraint("DistanceX", 0, 1, 0, 2, 8.9),
    Sketcher.Constraint("DistanceY", 1, 2, 1, 1, 1.4),
    Sketcher.Constraint("DistanceY", 9, 2, 9, 1, 6.5),
    Sketcher.Constraint("DistanceY", 17, 2, 17, 1, 3.8),
    Sketcher.Constraint("DistanceX", 0, 2, -1, 1, 38.0),
    Sketcher.Constraint("DistanceX", 6, 2, -1, 1, 67.0),
    Sketcher.Constraint("DistanceY", -1, 1, 8, 2, 54.0),
    Sketcher.Constraint("DistanceY", -1, 1, 12, 2, 36.0),
    Sketcher.Constraint("DistanceY", 16, 2, 9, 2, 17.0),
    Sketcher.Constraint("DistanceX", 13, 2, 20, 2, 18.0),
    Sketcher.Constraint("DistanceY", 17, 2, 20, 2, 5.0),
    Sketcher.Constraint("DistanceX", 16, 2, 22, 2, 9.0),
    Sketcher.Constraint("DistanceX", 8, 2, -1, 1, 73.6),
    Sketcher.Constraint("DistanceX", 12, 2, -1, 1, 76.8),
    Sketcher.Constraint("DistanceX", 24, 2, -1, 1, 41.7),
])
pad17 = body.newObject("PartDesign::Pad", "Pad016")
pad17.Profile = sketch17
pad17.Length = 5.5
pad17.Reversed = True

sketch18 = body.newObject("Sketcher::SketchObject", "Sketch017")
sketch18.AttachmentSupport = (doc.getObject("XZ_Plane"), [""])
sketch18.MapMode = "FlatFace"
sketch18.AttachmentOffset = App.Placement(V(0, 0, -15.7), App.Rotation())
add_polygon(sketch18, [(-37.8, 38.6), (-41.8, 38.6), (-41.8, 44.6), (-37.8, 44.6)])
add_polygon(sketch18, [(-38.2, 15.4), (-42.2, 15.4), (-42.2, 21.4), (-38.2, 21.4)])
add_polygon(sketch18, [(-56.2, 15.4), (-60.2, 15.4), (-60.2, 21.4), (-56.2, 21.4)])
add_polygon(sketch18, [(-74.2, 15.4), (-78.2, 15.4), (-78.2, 21.4), (-74.2, 21.4)])
sketch18.addConstraint([
    Sketcher.Constraint("Horizontal", 0),
    Sketcher.Constraint("Vertical", 1),
    Sketcher.Constraint("Horizontal", 2),
    Sketcher.Constraint("Vertical", 3),
    Sketcher.Constraint("Horizontal", 4),
    Sketcher.Constraint("Vertical", 5),
    Sketcher.Constraint("Horizontal", 6),
    Sketcher.Constraint("Vertical", 7),
    Sketcher.Constraint("Horizontal", 8),
    Sketcher.Constraint("Vertical", 9),
    Sketcher.Constraint("Horizontal", 10),
    Sketcher.Constraint("Vertical", 11),
    Sketcher.Constraint("Horizontal", 12),
    Sketcher.Constraint("Vertical", 13),
    Sketcher.Constraint("Horizontal", 14),
    Sketcher.Constraint("Vertical", 15),
    Sketcher.Constraint("Horizontal", 7, 2, 8, 2),
    Sketcher.Constraint("Horizontal", 6, 2, 9, 2),
    Sketcher.Constraint("Horizontal", 11, 2, 12, 2),
    Sketcher.Constraint("Horizontal", 10, 2, 13, 2),
    Sketcher.Constraint("Equal", 2, 4),
    Sketcher.Constraint("Equal", 6, 8),
    Sketcher.Constraint("Equal", 10, 12),
    Sketcher.Constraint("Equal", 3, 5),
    Sketcher.Constraint("DistanceX", 0, 2, 0, 1, 4.0),
    Sketcher.Constraint("DistanceY", 1, 1, 1, 2, 6.0),
    Sketcher.Constraint("DistanceX", 10, 2, 5, 2, 14.0),
    Sketcher.Constraint("DistanceX", 14, 2, 9, 2, 14.0),
    Sketcher.Constraint("DistanceX", 0, 2, -1, 1, 41.8),
    Sketcher.Constraint("DistanceY", -1, 1, 0, 2, 38.6),
    Sketcher.Constraint("DistanceX", 4, 2, -1, 1, 42.2),
    Sketcher.Constraint("DistanceY", -1, 1, 4, 2, 15.4),
])
pad18 = body.newObject("PartDesign::Pad", "Pad017")
pad18.Profile = sketch18
pad18.Length = 12
pad18.Reversed = True

doc.recompute()
